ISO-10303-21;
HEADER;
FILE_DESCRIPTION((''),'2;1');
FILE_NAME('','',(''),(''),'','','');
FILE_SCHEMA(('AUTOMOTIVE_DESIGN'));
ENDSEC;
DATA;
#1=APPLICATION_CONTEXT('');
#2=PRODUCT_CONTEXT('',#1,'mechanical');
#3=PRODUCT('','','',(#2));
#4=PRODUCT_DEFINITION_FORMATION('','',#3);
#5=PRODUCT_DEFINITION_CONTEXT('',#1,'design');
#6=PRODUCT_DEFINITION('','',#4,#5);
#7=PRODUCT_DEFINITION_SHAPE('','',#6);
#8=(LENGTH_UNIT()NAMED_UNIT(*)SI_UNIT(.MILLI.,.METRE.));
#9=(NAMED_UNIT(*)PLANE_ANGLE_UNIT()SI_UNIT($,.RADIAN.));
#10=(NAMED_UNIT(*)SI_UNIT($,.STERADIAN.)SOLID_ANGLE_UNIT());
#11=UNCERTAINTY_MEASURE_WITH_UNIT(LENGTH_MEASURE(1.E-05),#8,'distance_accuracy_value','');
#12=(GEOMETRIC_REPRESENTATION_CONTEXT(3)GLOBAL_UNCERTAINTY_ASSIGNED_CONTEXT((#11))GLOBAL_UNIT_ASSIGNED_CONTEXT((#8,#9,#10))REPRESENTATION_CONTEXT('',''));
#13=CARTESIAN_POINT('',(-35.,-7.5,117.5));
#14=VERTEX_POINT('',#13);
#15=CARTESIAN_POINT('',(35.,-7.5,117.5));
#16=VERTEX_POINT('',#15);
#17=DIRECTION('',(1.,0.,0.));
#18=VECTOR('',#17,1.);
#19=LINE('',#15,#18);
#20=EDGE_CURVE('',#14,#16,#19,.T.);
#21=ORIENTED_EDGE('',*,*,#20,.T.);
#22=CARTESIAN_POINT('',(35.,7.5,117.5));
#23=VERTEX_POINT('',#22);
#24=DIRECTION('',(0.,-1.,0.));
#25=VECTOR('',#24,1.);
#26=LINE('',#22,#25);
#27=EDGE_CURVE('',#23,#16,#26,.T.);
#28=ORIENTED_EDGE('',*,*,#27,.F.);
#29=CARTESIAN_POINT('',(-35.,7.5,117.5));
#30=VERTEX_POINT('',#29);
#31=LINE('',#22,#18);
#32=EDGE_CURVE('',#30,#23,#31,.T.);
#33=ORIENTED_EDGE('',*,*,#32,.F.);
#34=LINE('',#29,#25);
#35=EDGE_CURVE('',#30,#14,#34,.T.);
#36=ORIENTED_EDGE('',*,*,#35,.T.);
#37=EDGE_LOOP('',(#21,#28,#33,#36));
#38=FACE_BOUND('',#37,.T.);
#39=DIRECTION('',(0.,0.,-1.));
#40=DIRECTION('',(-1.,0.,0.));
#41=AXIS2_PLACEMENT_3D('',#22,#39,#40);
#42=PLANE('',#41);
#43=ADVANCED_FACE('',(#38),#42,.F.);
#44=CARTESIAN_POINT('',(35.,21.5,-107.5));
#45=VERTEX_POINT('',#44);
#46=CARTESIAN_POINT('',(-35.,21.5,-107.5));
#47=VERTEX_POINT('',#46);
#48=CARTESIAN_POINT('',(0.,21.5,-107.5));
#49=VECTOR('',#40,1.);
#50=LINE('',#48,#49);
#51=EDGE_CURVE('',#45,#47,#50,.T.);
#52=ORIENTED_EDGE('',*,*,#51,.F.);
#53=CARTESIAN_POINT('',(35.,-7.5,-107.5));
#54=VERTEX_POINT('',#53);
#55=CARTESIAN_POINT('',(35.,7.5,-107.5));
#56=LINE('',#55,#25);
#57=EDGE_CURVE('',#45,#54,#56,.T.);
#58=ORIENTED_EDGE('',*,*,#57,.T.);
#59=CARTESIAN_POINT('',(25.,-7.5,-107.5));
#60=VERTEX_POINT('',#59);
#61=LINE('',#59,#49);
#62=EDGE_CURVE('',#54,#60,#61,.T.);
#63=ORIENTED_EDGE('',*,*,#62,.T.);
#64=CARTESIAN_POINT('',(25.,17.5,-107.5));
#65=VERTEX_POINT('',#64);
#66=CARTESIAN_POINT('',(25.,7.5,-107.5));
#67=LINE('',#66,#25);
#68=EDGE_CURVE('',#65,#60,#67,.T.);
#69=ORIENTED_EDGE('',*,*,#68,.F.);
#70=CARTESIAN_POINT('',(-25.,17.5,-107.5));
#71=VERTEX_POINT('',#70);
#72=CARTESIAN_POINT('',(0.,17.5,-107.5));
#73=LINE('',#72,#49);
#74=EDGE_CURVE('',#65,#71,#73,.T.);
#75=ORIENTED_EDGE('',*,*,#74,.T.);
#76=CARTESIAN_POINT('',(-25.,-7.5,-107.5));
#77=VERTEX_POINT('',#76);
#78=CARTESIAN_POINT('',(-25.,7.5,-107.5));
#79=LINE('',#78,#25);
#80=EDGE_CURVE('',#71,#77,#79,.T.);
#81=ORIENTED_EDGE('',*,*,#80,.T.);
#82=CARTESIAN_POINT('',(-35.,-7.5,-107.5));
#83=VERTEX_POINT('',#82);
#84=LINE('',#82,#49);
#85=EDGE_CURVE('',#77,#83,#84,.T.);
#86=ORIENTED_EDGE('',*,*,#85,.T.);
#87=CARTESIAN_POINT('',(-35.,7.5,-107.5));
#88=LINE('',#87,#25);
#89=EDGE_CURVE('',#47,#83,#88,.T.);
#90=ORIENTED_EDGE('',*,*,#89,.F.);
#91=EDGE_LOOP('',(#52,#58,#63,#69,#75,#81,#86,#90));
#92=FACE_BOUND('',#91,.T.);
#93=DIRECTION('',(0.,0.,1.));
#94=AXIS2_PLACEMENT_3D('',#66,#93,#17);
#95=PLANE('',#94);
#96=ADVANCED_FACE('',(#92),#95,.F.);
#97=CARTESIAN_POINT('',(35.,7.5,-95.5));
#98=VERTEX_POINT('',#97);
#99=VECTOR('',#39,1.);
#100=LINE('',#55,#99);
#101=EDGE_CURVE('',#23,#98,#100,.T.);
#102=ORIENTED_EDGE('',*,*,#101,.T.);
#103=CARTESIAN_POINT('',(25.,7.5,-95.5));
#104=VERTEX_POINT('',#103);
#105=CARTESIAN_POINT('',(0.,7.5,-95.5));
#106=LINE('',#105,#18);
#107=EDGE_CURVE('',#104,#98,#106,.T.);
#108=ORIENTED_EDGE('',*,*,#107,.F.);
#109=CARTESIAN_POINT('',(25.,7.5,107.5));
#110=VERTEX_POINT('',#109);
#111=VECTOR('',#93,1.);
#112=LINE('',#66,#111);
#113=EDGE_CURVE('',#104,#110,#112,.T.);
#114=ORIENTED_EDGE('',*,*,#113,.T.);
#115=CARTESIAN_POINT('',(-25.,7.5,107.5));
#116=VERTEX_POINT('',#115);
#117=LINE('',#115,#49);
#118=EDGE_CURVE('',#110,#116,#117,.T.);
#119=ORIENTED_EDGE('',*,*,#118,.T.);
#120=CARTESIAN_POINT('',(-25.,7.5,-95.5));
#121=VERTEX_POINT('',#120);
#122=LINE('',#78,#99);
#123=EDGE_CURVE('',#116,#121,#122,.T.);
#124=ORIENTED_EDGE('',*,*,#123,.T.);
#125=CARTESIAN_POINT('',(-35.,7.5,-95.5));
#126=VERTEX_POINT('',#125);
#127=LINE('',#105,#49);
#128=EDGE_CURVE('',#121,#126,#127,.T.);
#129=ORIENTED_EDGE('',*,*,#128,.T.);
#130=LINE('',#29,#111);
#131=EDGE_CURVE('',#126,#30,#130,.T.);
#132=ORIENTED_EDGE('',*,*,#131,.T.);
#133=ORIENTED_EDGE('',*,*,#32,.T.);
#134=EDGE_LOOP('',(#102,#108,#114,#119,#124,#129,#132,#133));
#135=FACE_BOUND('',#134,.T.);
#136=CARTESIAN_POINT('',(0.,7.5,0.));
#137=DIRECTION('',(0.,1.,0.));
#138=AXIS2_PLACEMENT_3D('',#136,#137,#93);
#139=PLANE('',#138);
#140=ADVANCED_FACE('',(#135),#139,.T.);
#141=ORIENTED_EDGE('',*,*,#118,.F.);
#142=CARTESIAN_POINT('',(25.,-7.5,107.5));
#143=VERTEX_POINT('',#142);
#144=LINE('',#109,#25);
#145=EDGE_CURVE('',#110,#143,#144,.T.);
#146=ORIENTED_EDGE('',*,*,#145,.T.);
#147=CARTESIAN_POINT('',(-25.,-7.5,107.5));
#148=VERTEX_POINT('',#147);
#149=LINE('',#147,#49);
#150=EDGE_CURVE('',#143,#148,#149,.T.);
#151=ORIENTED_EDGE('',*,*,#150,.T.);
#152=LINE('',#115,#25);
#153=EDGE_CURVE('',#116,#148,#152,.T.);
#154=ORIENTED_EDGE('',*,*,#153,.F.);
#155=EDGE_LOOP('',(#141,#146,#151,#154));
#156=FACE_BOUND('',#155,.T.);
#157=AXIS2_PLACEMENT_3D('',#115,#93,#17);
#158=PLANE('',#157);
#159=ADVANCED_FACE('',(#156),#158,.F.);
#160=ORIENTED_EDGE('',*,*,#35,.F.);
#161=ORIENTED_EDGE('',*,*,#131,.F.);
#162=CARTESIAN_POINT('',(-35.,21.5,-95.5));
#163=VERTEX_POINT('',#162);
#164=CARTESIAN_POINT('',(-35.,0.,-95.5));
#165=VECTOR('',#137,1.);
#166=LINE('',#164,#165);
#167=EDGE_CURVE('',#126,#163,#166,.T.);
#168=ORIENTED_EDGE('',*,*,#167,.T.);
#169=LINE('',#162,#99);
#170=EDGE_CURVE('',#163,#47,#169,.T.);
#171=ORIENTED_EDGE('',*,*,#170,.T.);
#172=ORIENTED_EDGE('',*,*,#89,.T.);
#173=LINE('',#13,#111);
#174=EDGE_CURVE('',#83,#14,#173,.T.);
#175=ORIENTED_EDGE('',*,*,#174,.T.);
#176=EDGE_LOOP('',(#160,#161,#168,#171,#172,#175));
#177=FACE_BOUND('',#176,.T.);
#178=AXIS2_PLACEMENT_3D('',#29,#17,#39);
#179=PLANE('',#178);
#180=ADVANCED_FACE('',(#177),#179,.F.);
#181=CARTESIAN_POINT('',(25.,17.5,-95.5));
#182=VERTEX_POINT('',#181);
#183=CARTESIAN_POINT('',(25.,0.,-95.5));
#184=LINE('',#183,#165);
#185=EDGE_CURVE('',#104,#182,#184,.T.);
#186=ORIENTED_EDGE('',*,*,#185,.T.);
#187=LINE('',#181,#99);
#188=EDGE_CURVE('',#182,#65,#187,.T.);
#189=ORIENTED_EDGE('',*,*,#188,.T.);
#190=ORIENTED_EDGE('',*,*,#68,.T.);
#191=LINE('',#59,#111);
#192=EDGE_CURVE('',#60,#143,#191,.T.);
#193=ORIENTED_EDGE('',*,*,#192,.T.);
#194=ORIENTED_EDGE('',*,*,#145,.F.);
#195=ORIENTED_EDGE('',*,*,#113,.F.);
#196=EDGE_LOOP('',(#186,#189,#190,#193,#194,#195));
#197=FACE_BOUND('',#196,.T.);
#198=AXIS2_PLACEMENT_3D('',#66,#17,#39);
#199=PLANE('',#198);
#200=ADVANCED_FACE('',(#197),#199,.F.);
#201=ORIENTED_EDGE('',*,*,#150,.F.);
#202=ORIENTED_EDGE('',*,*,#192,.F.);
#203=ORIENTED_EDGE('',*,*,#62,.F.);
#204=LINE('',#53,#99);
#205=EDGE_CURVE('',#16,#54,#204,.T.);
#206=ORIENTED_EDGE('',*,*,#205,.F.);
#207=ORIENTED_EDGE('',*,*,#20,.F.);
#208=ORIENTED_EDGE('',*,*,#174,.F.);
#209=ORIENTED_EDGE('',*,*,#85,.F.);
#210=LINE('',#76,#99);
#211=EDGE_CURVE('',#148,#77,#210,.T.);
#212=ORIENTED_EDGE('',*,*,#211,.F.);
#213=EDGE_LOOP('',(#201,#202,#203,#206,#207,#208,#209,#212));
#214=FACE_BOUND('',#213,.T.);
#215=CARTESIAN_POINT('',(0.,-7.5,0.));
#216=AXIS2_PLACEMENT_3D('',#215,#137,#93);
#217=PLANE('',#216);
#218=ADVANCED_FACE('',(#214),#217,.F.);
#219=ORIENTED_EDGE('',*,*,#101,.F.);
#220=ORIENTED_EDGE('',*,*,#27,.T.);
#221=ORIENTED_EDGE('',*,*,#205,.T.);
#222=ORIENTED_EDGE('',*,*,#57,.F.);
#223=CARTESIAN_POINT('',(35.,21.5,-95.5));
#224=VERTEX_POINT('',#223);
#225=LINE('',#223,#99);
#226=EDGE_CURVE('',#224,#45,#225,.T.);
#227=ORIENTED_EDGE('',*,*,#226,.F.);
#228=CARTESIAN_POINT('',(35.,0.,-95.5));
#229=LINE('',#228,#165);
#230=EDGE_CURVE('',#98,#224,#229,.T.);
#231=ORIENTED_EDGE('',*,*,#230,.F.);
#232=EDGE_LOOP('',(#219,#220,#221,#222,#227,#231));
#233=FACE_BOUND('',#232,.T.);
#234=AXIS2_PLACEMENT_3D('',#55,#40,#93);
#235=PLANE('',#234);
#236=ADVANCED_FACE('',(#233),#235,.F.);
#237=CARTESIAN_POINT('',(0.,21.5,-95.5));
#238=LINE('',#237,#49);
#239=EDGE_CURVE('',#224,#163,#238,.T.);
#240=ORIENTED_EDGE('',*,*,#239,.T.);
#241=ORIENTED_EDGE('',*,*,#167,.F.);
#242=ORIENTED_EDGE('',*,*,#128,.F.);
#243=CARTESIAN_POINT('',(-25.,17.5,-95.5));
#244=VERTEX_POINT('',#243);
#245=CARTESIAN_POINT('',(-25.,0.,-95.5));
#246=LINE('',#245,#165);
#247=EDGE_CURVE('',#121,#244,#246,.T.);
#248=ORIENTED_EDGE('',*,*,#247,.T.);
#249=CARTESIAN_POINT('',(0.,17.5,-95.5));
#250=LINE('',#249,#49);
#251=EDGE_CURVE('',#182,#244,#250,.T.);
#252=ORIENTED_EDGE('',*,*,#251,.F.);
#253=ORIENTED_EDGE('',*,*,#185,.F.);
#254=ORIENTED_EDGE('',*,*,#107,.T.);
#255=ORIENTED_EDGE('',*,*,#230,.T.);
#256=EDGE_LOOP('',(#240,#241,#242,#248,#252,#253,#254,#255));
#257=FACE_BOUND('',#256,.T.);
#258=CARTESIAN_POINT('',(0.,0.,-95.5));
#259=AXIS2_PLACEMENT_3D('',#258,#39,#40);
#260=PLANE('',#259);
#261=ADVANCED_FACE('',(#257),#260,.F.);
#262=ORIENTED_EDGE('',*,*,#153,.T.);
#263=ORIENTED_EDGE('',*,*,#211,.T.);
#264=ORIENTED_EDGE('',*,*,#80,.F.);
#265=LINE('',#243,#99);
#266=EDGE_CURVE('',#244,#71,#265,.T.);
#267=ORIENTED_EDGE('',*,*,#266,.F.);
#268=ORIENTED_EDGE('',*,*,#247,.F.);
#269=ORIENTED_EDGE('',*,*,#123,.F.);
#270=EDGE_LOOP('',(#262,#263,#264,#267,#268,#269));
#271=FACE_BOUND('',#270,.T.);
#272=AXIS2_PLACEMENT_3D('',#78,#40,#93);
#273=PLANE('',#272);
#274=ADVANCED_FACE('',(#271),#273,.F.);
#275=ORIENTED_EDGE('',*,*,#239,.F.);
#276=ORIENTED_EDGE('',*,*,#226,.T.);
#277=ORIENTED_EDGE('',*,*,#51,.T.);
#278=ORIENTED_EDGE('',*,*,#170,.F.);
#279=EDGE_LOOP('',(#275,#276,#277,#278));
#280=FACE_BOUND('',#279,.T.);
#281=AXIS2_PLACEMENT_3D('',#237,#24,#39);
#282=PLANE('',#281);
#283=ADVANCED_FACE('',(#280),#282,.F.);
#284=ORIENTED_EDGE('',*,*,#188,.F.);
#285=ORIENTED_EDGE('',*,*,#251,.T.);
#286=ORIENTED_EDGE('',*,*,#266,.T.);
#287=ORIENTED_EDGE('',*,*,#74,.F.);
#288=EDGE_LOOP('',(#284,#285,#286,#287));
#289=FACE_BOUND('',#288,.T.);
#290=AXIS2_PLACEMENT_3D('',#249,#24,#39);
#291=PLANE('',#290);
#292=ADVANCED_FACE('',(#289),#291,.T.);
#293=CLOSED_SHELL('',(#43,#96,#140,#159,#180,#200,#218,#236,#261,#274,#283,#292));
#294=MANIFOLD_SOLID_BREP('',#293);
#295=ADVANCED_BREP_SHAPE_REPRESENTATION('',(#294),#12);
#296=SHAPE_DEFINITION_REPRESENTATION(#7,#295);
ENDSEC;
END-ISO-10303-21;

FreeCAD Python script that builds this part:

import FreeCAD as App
import Part
import Sketcher
Q = App.Units.Quantity

doc = App.newDocument("Part")
body = doc.addObject("PartDesign::Body", "Body")

# Sketch on XZ plane
sketch1 = body.newObject("Sketcher::SketchObject", "Sketch")
sketch1.AttachmentSupport = (doc.getObject("XZ_Plane"), [""])
sketch1.MapMode = "FlatFace"
sketch1.addGeometry(Part.LineSegment(App.Vector(35, -107.5, 0), App.Vector(25, -107.5, 0)), False)
sketch1.addGeometry(Part.LineSegment(App.Vector(25, -107.5, 0), App.Vector(25, 107.5, 0)), False)
sketch1.addGeometry(Part.LineSegment(App.Vector(25, 107.5, 0), App.Vector(-25, 107.5, 0)), False)
sketch1.addGeometry(Part.LineSegment(App.Vector(-25, 107.5, 0), App.Vector(-25, -107.5, 0)), False)
sketch1.addGeometry(Part.LineSegment(App.Vector(-25, -107.5, 0), App.Vector(-35, -107.5, 0)), False)
sketch1.addGeometry(Part.LineSegment(App.Vector(-35, -107.5, 0), App.Vector(-35, 117.5, 0)), False)
sketch1.addGeometry(Part.LineSegment(App.Vector(-35, 117.5, 0), App.Vector(35, 117.5, 0)), False)
sketch1.addGeometry(Part.LineSegment(App.Vector(35, 117.5, 0), App.Vector(35, -107.5, 0)), False)
sketch1.addConstraint(Sketcher.Constraint("Coincident", 0, 2, 1, 1))
sketch1.addConstraint(Sketcher.Constraint("Coincident", 1, 2, 2, 1))
sketch1.addConstraint(Sketcher.Constraint("Coincident", 2, 2, 3, 1))
sketch1.addConstraint(Sketcher.Constraint("Coincident", 3, 2, 4, 1))
sketch1.addConstraint(Sketcher.Constraint("Coincident", 4, 2, 5, 1))
sketch1.addConstraint(Sketcher.Constraint("Coincident", 5, 2, 6, 1))
sketch1.addConstraint(Sketcher.Constraint("Coincident", 6, 2, 7, 1))
sketch1.addConstraint(Sketcher.Constraint("Coincident", 7, 2, 0, 1))
sketch1.addConstraint(Sketcher.Constraint("Horizontal", 0))
sketch1.addConstraint(Sketcher.Constraint("Vertical", 1))
sketch1.addConstraint(Sketcher.Constraint("Horizontal", 2))
sketch1.addConstraint(Sketcher.Constraint("Vertical", 3))
sketch1.addConstraint(Sketcher.Constraint("Horizontal", 4))
sketch1.addConstraint(Sketcher.Constraint("Vertical", 5))
sketch1.addConstraint(Sketcher.Constraint("Horizontal", 6))
sketch1.addConstraint(Sketcher.Constraint("Vertical", 7))
sketch1.addConstraint(Sketcher.Constraint("Symmetric", 0, 2, 2, 2, -1, 1))
sketch1.addConstraint(Sketcher.Constraint("Symmetric", 4, 2, 7, 2, -2))
sketch1.addConstraint(Sketcher.Constraint("DistanceX", 0, 2, 0, 1, Q("10 mm")))
sketch1.addConstraint(Sketcher.Constraint("DistanceX", 2, 2, 2, 1, Q("50 mm")))
sketch1.addConstraint(Sketcher.Constraint("DistanceY", 1, 1, 1, 2, Q("215 mm")))
sketch1.addConstraint(Sketcher.Constraint("DistanceY", 5, 1, 5, 2, Q("225 mm")))
pad1 = body.newObject("PartDesign::Pad", "Pad")
pad1.Profile = sketch1
pad1.Length = 15
pad1.Midplane = True

# Sketch on XY plane
sketch2 = body.newObject("Sketcher::SketchObject", "Sketch001")
sketch2.AttachmentSupport = (doc.getObject("XY_Plane"), [""])
sketch2.MapMode = "FlatFace"
sketch2.AttachmentOffset = App.Placement(App.Vector(0, 0, -107.5), App.Rotation())
sketch2.addGeometry(Part.LineSegment(App.Vector(35, 7.5, 0), App.Vector(25, 7.5, 0)), False)
sketch2.addGeometry(Part.LineSegment(App.Vector(25, 7.5, 0), App.Vector(25, 17.5, 0)), False)
sketch2.addGeometry(Part.LineSegment(App.Vector(25, 17.5, 0), App.Vector(-25, 17.5, 0)), False)
sketch2.addGeometry(Part.LineSegment(App.Vector(-25, 17.5, 0), App.Vector(-25, 7.5, 0)), False)
sketch2.addGeometry(Part.LineSegment(App.Vector(-25, 7.5, 0), App.Vector(-35, 7.5, 0)), False)
sketch2.addGeometry(Part.LineSegment(App.Vector(-35, 7.5, 0), App.Vector(-35, 21.5, 0)), False)
sketch2.addGeometry(Part.LineSegment(App.Vector(-35, 21.5, 0), App.Vector(35, 21.5, 0)), False)
sketch2.addGeometry(Part.LineSegment(App.Vector(35, 21.5, 0), App.Vector(35, 7.5, 0)), False)
sketch2.addConstraint(Sketcher.Constraint("Coincident", 0, 2, 1, 1))
sketch2.addConstraint(Sketcher.Constraint("Coincident", 1, 2, 2, 1))
sketch2.addConstraint(Sketcher.Constraint("Coincident", 2, 2, 3, 1))
sketch2.addConstraint(Sketcher.Constraint("Coincident", 3, 2, 4, 1))
sketch2.addConstraint(Sketcher.Constraint("Coincident", 4, 2, 5, 1))
sketch2.addConstraint(Sketcher.Constraint("Coincident", 5, 2, 6, 1))
sketch2.addConstraint(Sketcher.Constraint("Coincident", 6, 2, 7, 1))
sketch2.addConstraint(Sketcher.Constraint("Coincident", 7, 2, 0, 1))
sketch2.addConstraint(Sketcher.Constraint("Horizontal", 0))
sketch2.addConstraint(Sketcher.Constraint("Vertical", 1))
sketch2.addConstraint(Sketcher.Constraint("Horizontal", 2))
sketch2.addConstraint(Sketcher.Constraint("Vertical", 3))
sketch2.addConstraint(Sketcher.Constraint("Horizontal", 4))
sketch2.addConstraint(Sketcher.Constraint("Vertical", 5))
sketch2.addConstraint(Sketcher.Constraint("Horizontal", 6))
sketch2.addConstraint(Sketcher.Constraint("Vertical", 7))
sketch2.addConstraint(Sketcher.Constraint("Symmetric", 0, 2, 3, 2, -2))
sketch2.addConstraint(Sketcher.Constraint("Equal", 0, 4))
sketch2.addConstraint(Sketcher.Constraint("Equal", 4, 1))
sketch2.addConstraint(Sketcher.Constraint("DistanceX", 0, 2, 0, 1, Q("10 mm")))
sketch2.addConstraint(Sketcher.Constraint("DistanceX", 2, 2, 2, 1, Q("50 mm")))
sketch2.addConstraint(Sketcher.Constraint("DistanceY", 5, 1, 5, 2, Q("14 mm")))
sketch2.addConstraint(Sketcher.Constraint("DistanceY", -1, 1, 0, 2, Q("7.5 mm")))
pad2 = body.newObject("PartDesign::Pad", "Pad001")
pad2.Profile = sketch2
pad2.Length = 12

doc.recompute()
